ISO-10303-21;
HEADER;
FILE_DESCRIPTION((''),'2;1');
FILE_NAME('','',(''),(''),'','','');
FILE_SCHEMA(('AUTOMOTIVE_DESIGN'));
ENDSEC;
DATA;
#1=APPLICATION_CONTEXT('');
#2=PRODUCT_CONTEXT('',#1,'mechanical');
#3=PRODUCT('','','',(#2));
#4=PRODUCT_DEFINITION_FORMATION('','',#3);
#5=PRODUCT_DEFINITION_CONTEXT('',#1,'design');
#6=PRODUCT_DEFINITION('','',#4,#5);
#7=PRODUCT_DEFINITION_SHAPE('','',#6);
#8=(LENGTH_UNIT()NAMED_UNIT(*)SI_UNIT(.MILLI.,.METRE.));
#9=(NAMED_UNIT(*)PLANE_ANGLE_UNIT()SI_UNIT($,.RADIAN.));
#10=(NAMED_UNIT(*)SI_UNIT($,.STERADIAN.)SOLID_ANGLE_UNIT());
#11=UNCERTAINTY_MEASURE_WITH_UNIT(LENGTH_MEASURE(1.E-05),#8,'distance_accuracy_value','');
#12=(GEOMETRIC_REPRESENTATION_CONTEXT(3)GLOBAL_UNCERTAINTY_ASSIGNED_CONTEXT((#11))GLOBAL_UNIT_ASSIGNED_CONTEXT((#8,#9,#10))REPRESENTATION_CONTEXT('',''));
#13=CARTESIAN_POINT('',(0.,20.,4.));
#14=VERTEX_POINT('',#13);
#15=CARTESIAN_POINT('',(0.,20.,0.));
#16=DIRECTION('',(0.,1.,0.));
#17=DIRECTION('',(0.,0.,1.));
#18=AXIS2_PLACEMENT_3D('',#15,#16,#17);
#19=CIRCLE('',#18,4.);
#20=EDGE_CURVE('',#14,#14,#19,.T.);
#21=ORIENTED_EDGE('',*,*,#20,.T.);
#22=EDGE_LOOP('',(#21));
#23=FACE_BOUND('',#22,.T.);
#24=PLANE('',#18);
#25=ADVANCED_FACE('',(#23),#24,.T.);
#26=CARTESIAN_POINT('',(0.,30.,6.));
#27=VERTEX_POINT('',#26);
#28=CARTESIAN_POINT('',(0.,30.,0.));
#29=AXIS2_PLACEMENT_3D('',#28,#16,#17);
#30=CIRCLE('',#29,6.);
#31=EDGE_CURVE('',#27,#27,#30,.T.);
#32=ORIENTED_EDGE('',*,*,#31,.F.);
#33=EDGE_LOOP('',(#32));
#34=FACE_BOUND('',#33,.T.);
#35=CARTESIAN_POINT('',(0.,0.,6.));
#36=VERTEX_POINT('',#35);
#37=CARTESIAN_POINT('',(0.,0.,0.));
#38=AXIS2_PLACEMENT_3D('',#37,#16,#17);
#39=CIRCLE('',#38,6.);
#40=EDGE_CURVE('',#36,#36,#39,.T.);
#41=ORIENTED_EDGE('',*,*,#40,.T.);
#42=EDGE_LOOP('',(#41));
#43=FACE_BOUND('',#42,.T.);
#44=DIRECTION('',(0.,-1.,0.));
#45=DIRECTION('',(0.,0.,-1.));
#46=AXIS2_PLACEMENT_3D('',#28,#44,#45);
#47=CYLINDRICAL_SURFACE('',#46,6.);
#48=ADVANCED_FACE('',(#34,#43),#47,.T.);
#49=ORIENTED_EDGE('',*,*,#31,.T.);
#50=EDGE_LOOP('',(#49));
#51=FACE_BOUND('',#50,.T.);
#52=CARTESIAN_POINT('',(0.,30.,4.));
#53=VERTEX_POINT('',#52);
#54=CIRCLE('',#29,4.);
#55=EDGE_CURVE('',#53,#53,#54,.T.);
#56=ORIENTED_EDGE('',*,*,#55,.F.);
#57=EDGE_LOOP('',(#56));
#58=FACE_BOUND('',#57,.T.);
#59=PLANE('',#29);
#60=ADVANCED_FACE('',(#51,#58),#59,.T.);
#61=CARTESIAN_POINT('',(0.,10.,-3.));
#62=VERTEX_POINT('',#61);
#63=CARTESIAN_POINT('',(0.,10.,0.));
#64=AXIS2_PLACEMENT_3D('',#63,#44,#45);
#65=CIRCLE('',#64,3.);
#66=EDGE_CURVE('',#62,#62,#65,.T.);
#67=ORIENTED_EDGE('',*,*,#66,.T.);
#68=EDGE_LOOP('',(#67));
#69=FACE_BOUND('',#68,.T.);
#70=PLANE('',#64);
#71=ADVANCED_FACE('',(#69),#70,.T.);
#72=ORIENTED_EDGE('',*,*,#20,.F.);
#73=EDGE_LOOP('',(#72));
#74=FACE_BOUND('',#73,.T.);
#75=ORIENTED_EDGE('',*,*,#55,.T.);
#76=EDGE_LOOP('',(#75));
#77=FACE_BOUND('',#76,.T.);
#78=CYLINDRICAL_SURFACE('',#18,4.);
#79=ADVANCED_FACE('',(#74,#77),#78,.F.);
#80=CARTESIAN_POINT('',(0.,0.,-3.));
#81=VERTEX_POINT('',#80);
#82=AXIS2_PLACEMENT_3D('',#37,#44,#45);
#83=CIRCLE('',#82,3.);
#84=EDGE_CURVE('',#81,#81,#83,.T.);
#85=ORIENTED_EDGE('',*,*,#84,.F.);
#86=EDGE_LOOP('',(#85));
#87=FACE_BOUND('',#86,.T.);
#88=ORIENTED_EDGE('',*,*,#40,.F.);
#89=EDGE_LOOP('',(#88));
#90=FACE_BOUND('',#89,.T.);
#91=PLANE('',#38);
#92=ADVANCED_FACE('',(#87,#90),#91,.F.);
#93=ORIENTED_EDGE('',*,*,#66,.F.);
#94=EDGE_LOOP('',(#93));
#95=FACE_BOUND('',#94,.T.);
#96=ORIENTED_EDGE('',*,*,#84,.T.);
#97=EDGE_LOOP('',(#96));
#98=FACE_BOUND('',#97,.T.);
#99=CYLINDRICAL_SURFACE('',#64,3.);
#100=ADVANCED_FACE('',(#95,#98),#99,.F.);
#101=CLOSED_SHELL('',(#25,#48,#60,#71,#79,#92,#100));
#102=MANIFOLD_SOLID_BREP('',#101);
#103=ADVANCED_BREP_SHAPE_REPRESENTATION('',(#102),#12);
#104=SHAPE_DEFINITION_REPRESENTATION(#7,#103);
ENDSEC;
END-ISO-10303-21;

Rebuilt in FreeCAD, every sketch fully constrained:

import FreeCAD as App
import Part
import Sketcher
from FreeCAD import Vector

doc = App.newDocument("Part")
body = doc.addObject("PartDesign::Body", "Body")

# Sketch on XZ plane
sketch1 = body.newObject("Sketcher::SketchObject", "Sketch")
sketch1.AttachmentSupport = (doc.getObject("XZ_Plane"), [""])
sketch1.MapMode = "FlatFace"
sketch1.addGeometry(Part.Circle(Vector(0, 0, 0), Vector(0, 0, 1), 6), False)
sketch1.addConstraint(Sketcher.Constraint("Coincident", 0, 3, -1, 1))
sketch1.addConstraint(Sketcher.Constraint("Diameter", 0, 12.0))
pad1 = body.newObject("PartDesign::Pad", "Pad")
pad1.Profile = sketch1
pad1.Length = 30
pad1.Reversed = True

# Sketch on XZ plane
sketch2 = body.newObject("Sketcher::SketchObject", "Sketch001")
sketch2.AttachmentSupport = (doc.getObject("XZ_Plane"), [""])
sketch2.MapMode = "FlatFace"
sketch2.AttachmentOffset = App.Placement(Vector(0, 0, -30), App.Rotation())
sketch2.addGeometry(Part.Circle(Vector(0, 0, 0), Vector(0, 0, 1), 4), False)
sketch2.addConstraint(Sketcher.Constraint("Coincident", 0, 3, -1, 1))
sketch2.addConstraint(Sketcher.Constraint("Diameter", 0, 8.0))
pocket1 = body.newObject("PartDesign::Pocket", "Pocket")
pocket1.Profile = sketch2
pocket1.Length = 10
pocket1.Reversed = True

# Sketch on XZ plane
sketch3 = body.newObject("Sketcher::SketchObject", "Sketch002")
sketch3.AttachmentSupport = (doc.getObject("XZ_Plane"), [""])
sketch3.MapMode = "FlatFace"
sketch3.addGeometry(Part.Circle(Vector(0, 0, 0), Vector(0, 0, 1), 3), False)
sketch3.addConstraint(Sketcher.Constraint("Coincident", 0, 3, -1, 1))
sketch3.addConstraint(Sketcher.Constraint("Diameter", 0, 6.0))
pocket2 = body.newObject("PartDesign::Pocket", "Pocket001")
pocket2.Profile = sketch3
pocket2.Length = 10

doc.recompute()
